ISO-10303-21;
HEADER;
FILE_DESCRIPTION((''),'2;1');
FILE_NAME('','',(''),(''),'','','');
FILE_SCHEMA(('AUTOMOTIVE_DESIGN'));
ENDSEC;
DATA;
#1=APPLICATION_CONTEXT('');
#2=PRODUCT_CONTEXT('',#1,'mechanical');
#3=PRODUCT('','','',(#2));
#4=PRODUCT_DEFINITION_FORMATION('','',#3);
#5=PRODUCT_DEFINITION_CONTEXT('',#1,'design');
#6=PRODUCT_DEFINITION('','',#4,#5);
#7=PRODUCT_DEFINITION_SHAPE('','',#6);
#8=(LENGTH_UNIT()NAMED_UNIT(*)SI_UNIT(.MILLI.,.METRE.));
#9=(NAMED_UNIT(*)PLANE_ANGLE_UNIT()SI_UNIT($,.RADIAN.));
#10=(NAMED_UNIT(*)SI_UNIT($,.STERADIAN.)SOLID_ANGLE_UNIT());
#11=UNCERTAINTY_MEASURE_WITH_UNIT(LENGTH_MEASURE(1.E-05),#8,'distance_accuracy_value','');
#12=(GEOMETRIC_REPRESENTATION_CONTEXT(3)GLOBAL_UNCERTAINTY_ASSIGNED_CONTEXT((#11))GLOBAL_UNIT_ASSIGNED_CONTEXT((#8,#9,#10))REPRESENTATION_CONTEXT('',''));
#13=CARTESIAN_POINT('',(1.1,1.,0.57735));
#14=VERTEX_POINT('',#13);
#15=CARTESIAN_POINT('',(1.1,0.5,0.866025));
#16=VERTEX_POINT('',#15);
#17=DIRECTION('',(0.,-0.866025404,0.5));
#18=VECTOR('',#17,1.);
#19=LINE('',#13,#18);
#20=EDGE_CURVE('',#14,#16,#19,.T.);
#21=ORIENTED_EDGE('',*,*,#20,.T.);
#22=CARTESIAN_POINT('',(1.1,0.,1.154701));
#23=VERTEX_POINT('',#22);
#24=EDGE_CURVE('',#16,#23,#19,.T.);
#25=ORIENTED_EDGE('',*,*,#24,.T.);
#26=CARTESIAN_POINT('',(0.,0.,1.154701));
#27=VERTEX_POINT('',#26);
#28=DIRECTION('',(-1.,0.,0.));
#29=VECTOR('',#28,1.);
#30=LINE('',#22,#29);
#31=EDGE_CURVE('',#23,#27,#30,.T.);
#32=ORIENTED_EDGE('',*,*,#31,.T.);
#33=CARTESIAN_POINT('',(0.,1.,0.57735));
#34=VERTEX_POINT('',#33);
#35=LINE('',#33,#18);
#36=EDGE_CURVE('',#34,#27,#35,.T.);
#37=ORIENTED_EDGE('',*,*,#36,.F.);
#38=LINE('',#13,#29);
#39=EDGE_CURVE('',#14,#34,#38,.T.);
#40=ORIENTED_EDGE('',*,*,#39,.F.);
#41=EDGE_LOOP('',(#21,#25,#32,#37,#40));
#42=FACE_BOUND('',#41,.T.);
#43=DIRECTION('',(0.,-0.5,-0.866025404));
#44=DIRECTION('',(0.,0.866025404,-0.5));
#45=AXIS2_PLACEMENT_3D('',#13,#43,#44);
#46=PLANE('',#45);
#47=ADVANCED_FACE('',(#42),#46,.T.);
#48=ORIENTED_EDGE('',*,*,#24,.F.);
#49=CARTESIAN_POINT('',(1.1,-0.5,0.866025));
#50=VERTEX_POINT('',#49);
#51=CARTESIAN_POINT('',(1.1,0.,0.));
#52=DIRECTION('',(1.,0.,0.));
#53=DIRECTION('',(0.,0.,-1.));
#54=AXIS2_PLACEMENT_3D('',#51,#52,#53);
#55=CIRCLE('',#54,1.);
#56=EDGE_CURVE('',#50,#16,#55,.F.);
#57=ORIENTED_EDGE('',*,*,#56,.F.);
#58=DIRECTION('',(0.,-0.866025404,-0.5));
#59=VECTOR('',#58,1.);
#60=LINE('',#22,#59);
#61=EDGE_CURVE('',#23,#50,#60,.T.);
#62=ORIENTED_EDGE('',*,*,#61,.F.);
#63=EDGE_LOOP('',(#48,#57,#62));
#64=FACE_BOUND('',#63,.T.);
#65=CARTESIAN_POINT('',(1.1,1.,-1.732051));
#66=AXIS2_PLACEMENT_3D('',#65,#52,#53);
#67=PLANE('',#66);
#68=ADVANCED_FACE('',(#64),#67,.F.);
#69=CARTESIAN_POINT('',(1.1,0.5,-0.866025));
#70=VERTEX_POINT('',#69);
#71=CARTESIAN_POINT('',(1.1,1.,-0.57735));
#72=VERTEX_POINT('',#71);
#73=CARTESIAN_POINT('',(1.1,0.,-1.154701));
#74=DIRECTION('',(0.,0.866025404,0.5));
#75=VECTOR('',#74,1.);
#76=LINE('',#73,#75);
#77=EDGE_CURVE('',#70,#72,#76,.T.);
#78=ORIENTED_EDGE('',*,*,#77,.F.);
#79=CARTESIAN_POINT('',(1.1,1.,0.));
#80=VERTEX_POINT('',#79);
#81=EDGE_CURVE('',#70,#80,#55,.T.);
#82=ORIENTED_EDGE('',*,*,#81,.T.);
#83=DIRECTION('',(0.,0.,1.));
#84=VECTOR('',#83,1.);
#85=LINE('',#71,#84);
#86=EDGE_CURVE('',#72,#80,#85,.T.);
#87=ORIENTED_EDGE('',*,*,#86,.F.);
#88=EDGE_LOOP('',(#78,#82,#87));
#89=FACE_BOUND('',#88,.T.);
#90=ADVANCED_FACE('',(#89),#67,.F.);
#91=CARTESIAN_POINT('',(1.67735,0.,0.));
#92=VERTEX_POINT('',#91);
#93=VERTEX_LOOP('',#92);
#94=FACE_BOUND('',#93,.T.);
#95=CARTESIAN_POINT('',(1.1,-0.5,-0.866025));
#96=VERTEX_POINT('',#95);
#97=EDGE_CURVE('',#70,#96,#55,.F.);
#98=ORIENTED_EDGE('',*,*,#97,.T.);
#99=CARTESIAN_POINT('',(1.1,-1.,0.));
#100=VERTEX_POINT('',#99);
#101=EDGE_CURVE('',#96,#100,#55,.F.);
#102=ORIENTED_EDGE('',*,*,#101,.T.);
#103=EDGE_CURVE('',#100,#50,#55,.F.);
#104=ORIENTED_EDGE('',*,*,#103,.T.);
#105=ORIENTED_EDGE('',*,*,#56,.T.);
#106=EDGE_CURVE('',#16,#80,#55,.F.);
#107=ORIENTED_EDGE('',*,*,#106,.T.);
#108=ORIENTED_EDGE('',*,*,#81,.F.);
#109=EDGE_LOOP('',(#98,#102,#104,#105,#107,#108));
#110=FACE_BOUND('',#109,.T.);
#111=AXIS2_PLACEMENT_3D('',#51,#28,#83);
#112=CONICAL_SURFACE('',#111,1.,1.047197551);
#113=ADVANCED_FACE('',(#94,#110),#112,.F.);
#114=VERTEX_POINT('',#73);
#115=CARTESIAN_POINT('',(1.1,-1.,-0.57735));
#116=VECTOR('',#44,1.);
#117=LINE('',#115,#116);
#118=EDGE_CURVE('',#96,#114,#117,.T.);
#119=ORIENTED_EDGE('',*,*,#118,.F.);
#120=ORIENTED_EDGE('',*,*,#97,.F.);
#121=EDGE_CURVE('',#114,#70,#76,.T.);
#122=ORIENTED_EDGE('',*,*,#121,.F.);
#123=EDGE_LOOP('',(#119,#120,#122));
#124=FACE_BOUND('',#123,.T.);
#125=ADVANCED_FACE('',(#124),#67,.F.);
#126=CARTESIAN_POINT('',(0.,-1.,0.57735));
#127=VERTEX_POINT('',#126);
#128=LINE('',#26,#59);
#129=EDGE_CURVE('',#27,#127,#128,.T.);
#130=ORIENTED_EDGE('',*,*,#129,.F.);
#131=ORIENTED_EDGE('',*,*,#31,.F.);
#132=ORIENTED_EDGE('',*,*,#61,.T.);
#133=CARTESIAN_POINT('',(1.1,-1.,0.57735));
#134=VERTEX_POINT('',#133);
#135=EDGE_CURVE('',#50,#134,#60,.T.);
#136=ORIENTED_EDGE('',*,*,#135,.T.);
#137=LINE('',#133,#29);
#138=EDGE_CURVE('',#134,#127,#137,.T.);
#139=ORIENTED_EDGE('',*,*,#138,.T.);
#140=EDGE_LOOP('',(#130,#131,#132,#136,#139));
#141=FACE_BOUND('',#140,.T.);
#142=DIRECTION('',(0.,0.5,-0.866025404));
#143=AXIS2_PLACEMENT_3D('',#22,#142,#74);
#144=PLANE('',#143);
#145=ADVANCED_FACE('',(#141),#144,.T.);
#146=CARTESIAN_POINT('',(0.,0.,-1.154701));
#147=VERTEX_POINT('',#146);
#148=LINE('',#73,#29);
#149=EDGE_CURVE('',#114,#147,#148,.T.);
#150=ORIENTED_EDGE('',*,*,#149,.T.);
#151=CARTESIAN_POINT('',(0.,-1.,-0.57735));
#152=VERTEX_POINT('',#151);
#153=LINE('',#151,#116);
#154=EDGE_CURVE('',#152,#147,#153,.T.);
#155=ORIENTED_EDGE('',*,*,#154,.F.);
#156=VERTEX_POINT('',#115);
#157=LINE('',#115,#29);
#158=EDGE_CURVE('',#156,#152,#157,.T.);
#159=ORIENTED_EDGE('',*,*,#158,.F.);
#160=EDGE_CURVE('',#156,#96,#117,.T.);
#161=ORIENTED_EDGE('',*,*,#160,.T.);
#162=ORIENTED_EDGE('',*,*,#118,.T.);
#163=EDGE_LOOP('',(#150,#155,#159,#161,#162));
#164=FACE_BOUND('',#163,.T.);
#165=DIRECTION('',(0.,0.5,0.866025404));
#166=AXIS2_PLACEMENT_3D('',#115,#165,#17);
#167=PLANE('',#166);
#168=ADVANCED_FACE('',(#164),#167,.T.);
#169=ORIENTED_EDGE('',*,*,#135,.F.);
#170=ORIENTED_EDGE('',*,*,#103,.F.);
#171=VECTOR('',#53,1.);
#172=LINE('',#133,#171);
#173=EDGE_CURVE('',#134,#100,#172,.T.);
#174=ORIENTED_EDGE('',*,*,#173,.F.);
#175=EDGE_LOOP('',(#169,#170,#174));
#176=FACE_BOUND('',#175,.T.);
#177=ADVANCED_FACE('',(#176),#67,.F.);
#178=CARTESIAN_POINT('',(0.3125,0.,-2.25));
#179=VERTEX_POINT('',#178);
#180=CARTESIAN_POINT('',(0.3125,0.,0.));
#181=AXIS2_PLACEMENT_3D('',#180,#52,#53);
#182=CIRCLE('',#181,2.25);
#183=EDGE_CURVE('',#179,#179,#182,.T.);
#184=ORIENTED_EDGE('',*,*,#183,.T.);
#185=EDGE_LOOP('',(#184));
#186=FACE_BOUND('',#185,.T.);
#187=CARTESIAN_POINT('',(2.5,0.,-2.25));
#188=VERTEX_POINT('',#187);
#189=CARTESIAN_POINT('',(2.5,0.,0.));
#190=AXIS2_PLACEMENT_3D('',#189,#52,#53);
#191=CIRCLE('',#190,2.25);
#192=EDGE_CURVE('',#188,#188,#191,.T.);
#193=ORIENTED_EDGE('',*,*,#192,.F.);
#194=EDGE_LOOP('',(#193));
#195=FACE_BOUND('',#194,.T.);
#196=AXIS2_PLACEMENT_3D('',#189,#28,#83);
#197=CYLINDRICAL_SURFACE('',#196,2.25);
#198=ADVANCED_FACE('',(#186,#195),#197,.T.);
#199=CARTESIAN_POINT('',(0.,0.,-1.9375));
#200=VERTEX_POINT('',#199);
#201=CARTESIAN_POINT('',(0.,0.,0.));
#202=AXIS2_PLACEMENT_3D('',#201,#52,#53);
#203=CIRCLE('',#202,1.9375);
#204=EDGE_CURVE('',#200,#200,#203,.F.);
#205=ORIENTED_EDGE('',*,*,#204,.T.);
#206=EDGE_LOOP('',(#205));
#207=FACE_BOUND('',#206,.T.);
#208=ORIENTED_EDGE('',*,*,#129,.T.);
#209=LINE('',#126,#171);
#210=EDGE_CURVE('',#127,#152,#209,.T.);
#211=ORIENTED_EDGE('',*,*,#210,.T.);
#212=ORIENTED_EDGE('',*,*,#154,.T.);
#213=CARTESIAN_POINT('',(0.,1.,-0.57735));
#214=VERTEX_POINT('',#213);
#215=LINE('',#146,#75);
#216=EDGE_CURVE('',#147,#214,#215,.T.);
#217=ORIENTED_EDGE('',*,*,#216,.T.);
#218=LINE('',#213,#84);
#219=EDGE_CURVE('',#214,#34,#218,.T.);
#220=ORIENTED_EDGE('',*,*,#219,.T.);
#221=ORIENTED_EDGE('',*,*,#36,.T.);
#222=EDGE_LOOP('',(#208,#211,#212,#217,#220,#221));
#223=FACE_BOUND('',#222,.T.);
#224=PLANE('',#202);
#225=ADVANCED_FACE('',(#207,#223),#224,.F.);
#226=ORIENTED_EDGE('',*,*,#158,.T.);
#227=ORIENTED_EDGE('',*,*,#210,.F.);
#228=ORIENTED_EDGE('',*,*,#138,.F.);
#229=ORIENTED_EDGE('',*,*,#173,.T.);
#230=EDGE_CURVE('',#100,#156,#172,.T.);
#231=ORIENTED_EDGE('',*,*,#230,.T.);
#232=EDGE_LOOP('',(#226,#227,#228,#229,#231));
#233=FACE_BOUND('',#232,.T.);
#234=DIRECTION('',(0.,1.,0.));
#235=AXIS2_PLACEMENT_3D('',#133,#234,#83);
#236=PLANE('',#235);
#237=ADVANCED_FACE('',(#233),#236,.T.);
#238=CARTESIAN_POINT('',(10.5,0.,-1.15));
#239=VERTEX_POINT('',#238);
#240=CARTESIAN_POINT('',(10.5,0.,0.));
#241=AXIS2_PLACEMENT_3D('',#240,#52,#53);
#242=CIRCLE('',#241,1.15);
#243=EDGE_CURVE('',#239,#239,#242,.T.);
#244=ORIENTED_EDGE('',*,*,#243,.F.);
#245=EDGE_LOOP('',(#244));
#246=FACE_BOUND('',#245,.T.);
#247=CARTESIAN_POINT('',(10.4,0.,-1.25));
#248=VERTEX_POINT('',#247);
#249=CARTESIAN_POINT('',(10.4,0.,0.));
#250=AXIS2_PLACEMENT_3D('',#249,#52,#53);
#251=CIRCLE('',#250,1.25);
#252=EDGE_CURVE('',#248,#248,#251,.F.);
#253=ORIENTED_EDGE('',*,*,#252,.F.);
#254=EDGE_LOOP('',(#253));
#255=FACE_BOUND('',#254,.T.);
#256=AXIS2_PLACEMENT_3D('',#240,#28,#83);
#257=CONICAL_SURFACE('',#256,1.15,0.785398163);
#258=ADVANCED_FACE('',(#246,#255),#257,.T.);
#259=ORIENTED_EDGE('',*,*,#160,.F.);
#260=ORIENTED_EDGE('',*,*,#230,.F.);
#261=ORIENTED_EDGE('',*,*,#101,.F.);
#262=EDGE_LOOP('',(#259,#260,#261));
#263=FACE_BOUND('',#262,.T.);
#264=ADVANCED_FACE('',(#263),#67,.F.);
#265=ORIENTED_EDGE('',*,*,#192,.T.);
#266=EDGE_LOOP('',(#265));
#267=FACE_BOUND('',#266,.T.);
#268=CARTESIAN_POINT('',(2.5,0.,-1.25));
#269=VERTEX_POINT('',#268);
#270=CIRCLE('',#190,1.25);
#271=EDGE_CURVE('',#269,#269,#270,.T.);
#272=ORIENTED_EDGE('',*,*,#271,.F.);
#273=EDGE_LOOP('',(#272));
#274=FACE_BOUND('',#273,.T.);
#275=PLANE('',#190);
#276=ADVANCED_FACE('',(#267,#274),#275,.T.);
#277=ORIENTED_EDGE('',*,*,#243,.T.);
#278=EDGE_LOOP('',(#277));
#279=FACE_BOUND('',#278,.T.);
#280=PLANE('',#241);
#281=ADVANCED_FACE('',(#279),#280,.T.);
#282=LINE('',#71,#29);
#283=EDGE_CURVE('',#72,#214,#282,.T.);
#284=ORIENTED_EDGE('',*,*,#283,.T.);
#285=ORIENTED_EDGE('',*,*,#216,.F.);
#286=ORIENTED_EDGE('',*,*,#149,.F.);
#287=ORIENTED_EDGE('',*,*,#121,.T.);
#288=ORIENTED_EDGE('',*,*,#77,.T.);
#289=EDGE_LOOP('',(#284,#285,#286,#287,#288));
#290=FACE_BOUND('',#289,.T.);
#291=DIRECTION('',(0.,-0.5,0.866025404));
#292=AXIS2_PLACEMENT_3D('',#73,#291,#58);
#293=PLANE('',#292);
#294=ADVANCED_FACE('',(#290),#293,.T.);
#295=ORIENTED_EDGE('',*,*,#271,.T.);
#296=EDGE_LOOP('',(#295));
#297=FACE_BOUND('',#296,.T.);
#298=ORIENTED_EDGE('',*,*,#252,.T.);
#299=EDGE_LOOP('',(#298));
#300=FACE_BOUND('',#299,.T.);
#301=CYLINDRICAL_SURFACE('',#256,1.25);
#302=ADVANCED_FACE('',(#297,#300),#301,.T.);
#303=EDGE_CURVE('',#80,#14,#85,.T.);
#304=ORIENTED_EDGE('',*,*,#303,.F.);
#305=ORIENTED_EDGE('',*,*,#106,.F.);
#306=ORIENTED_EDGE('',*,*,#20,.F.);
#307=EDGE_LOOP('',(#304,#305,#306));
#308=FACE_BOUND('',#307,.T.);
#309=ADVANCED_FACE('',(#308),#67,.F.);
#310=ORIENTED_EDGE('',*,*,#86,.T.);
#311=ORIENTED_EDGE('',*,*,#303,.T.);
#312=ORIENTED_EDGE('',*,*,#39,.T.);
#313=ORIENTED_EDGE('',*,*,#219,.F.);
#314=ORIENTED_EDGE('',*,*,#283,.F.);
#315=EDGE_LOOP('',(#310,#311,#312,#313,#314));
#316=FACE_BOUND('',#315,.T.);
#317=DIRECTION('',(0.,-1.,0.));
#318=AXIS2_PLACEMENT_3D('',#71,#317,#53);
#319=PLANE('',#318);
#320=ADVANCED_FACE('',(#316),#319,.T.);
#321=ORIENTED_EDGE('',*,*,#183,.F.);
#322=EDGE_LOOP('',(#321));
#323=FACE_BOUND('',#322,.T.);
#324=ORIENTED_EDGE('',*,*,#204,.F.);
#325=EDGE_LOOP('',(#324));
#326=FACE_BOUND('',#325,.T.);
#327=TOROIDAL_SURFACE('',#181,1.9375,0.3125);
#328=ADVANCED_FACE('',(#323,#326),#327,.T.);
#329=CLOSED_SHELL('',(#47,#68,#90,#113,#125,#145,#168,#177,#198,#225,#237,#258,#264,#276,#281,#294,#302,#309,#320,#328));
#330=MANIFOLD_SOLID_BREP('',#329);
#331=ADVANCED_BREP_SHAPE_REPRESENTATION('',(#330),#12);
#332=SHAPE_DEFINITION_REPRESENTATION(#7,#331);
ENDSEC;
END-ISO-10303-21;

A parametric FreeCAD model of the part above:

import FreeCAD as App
import Part
import Sketcher
from FreeCAD import Vector
Q = App.Units.Quantity


def edges_at(feature, points):
    """Names of the edges that pass closest to the given points."""
    edges = feature.Shape.Edges
    near = lambda p: min(range(len(edges)), key=lambda i: edges[i].distToShape(Part.Vertex(*p))[0])
    return sorted({f"Edge{near(p) + 1}" for p in points})

doc = App.newDocument("Part")
body = doc.addObject("PartDesign::Body", "Body")

sketch1 = body.newObject("Sketcher::SketchObject", "Sketch")
sketch1.AttachmentSupport = (doc.getObject("YZ_Plane"), [""])
sketch1.MapMode = "FlatFace"
sketch1.addGeometry(Part.Circle(Vector(0, 0, 0), Vector(0, 0, 1), 2.2), False)
sketch1.addConstraint([
    Sketcher.Constraint("Coincident", 0, 3, -1, 1),
    Sketcher.Constraint("Diameter", 0, 4.5),
])
pad1 = body.newObject("PartDesign::Pad", "Pad")
pad1.Profile = sketch1
pad1.Length = 2.5

sketch2 = body.newObject("Sketcher::SketchObject", "Sketch001")
sketch2.AttachmentSupport = (doc.getObject("YZ_Plane"), [""])
sketch2.MapMode = "FlatFace"
sketch2.AttachmentOffset = App.Placement(Vector(0, 0, 2.5), App.Rotation())
sketch2.addGeometry(Part.Circle(Vector(0, 0, 0), Vector(0, 0, 1), 1.2), False)
sketch2.addConstraint([
    Sketcher.Constraint("Coincident", 0, 3, -1, 1),
    Sketcher.Constraint("Diameter", 0, 2.5),
])
pad2 = body.newObject("PartDesign::Pad", "Pad001")
pad2.Profile = sketch2
pad2.Length = 8

sketch3 = body.newObject("Sketcher::SketchObject", "Sketch002")
sketch3.AttachmentSupport = (doc.getObject("YZ_Plane"), [""])
sketch3.MapMode = "FlatFace"
sketch3.addGeometry([
    Part.LineSegment(Vector(0, -1.2, 0), Vector(1, -0.6, 0)),
    Part.LineSegment(Vector(1, -0.6, 0), Vector(1, 0.6, 0)),
    Part.LineSegment(Vector(1, 0.6, 0), Vector(0, 1.2, 0)),
    Part.LineSegment(Vector(0, 1.2, 0), Vector(-1, 0.6, 0)),
    Part.LineSegment(Vector(-1, 0.6, 0), Vector(-1, -0.6, 0)),
    Part.LineSegment(Vector(-1, -0.6, 0), Vector(0, -1.2, 0)),
], False)
sketch3.addConstraint([
    Sketcher.Constraint("Coincident", 0, 2, 1, 1),
    Sketcher.Constraint("Coincident", 1, 2, 2, 1),
    Sketcher.Constraint("Coincident", 2, 2, 3, 1),
    Sketcher.Constraint("Coincident", 3, 2, 4, 1),
    Sketcher.Constraint("Coincident", 4, 2, 5, 1),
    Sketcher.Constraint("Coincident", 5, 2, 0, 1),
    Sketcher.Constraint("Vertical", 1),
    Sketcher.Constraint("Vertical", 4),
    Sketcher.Constraint("Symmetric", 0, 2, 3, 2, -1, 1),
    Sketcher.Constraint("Symmetric", 2, 2, 5, 2, -1, 1),
    Sketcher.Constraint("PointOnObject", 2, 2, -2),
    Sketcher.Constraint("Parallel", 2, 5),
    Sketcher.Constraint("Horizontal", 1, 2, 3, 2),
    Sketcher.Constraint("Angle", 0, Q("30 deg")),
    Sketcher.Constraint("DistanceX", -1, 1, 0, 2, 1.0),
    Sketcher.Constraint("DistanceY", 1, 1, 1, 2, 1.154701),
])
pocket1 = body.newObject("PartDesign::Pocket", "Pocket")
pocket1.Profile = sketch3
pocket1.Length = 1.1
pocket1.Reversed = True

sketch4 = body.newObject("Sketcher::SketchObject", "Sketch003")
sketch4.AttachmentSupport = (doc.getObject("XY_Plane"), [""])
sketch4.MapMode = "FlatFace"
sketch4.addGeometry([
    Part.LineSegment(Vector(1.1, -1, 0), Vector(1.7, 0, 0)),
    Part.LineSegment(Vector(1.7, 0, 0), Vector(1.1, 0, 0)),
    Part.LineSegment(Vector(1.1, 0, 0), Vector(1.1, -1, 0)),
], False)
sketch4.addConstraint([
    Sketcher.Constraint("Coincident", 0, 2, 1, 1),
    Sketcher.Constraint("Coincident", 1, 2, 2, 1),
    Sketcher.Constraint("Coincident", 2, 2, 0, 1),
    Sketcher.Constraint("Horizontal", 1),
    Sketcher.Constraint("Vertical", 2),
    Sketcher.Constraint("PointOnObject", 0, 2, -1),
    Sketcher.Constraint("DistanceY", 2, 2, 2, 1, 1.0),
    Sketcher.Constraint("Angle", 0, Q("60 deg")),
    Sketcher.Constraint("DistanceX", -1, 1, 1, 2, 1.1),
])
groove = body.newObject("PartDesign::Groove", "Groove")
groove.Profile = sketch4
groove.ReferenceAxis = (sketch4, ["H_Axis"])
groove.Angle = 360
doc.recompute()

fillet = body.newObject("PartDesign::Fillet", "Fillet")
fillet.Base = (groove, edges_at(groove, [(0, 0, 2.25)]))
fillet.Radius = 0.3125
doc.recompute()

chamfer = body.newObject("PartDesign::Chamfer", "Chamfer")
chamfer.Base = (fillet, edges_at(fillet, [(10.5, 0, 1.25)]))
chamfer.Size = 0.1

doc.recompute()
